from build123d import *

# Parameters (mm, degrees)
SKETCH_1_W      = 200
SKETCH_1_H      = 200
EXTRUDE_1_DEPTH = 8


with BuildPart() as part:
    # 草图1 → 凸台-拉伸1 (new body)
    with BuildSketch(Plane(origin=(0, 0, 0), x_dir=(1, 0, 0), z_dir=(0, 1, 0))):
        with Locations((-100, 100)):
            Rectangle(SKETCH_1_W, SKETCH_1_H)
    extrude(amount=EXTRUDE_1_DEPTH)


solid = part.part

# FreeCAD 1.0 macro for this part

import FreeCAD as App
import Part
import Sketcher

V = App.Vector
Q = App.Units.Quantity

doc = App.newDocument("Part")
params = doc.addObject("Spreadsheet::Sheet", "Params")
for row, (alias, value) in enumerate([
    ("sketch1_width", "200 mm"),
    ("pad1_length", "8 mm"),
], start=1):
    params.set(f"A{row}", alias)
    params.set(f"B{row}", "=" + value)
    params.setAlias(f"B{row}", alias)

body = doc.addObject("PartDesign::Body", "Body")

# Sketch on XZ plane
sketch1 = doc.addObject("Sketcher::SketchObject", "Sketch")
body.addObject(sketch1)
sketch1.AttachmentSupport = (doc.XZ_Plane, [""])
sketch1.MapMode = "FlatFace"
sketch1.addGeometry(Part.LineSegment(V(-200, -200, 0), V(-200, 0, 0)), False)
sketch1.addGeometry(Part.LineSegment(V(-200, 0, 0), V(0, 0, 0)), False)
sketch1.addGeometry(Part.LineSegment(V(0, 0, 0), V(0, -200, 0)), False)
sketch1.addGeometry(Part.LineSegment(V(0, -200, 0), V(-200, -200, 0)), False)
sketch1.addConstraint(Sketcher.Constraint("Coincident", 0, 2, 1, 1))
sketch1.addConstraint(Sketcher.Constraint("Coincident", 1, 2, 2, 1))
sketch1.addConstraint(Sketcher.Constraint("Coincident", 2, 2, 3, 1))
sketch1.addConstraint(Sketcher.Constraint("Coincident", 3, 2, 0, 1))
sketch1.addConstraint(Sketcher.Constraint("Vertical", 0))
sketch1.addConstraint(Sketcher.Constraint("Horizontal", 1))
sketch1.addConstraint(Sketcher.Constraint("Vertical", 2))
sketch1.addConstraint(Sketcher.Constraint("Horizontal", 3))
sketch1.addConstraint(Sketcher.Constraint("Coincident", 1, 2, -1, 1))
sketch1.addConstraint(Sketcher.Constraint("Equal", 3, 0))
sketch1.addConstraint(Sketcher.Constraint("DistanceX", 1, 1, 1, 2, Q("200 mm")))
sketch1.setExpression("Constraints[10]", "Params.sketch1_width")
pad1 = doc.addObject("PartDesign::Pad", "Pad")
body.addObject(pad1)
pad1.Profile = sketch1
pad1.setExpression("Length", "Params.pad1_length")
pad1.Reversed = True

doc.recompute()
